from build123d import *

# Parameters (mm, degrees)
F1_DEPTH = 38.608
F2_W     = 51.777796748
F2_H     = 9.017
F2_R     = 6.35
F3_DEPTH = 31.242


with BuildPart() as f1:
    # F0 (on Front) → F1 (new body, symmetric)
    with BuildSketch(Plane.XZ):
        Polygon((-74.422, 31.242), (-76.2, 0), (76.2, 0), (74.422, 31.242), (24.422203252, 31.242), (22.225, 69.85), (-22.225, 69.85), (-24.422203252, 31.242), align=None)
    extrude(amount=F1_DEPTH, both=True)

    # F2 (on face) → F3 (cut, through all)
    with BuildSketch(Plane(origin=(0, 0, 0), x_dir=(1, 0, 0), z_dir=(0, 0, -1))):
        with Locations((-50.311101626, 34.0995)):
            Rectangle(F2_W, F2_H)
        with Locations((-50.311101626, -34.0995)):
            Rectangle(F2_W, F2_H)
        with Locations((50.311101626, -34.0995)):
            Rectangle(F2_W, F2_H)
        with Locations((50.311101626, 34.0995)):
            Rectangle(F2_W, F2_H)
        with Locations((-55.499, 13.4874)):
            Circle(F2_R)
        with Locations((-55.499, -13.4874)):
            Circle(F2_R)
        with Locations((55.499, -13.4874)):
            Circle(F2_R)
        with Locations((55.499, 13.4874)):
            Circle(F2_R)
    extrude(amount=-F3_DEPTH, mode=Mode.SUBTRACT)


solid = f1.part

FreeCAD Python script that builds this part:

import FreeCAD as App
import Part
import Sketcher
Q = App.Units.Quantity

doc = App.newDocument("Part")
params = doc.addObject("Spreadsheet::Sheet", "Params")
for row, (alias, value) in enumerate([
    ("sketch1_width", "6 in"),
    ("sketch1_width2", "1.75 in"),
    ("pad1_length", "3.04 in"),
    ("sketch2_diameter", "0.5 in"),
    ("sketch2_height", "0.355 in"),
], start=1):
    params.set(f"A{row}", alias)
    params.set(f"B{row}", "=" + value)
    params.setAlias(f"B{row}", alias)

body = doc.addObject("PartDesign::Body", "Body")

# Sketch on XZ plane
sketch1 = body.newObject("Sketcher::SketchObject", "Sketch")
sketch1.AttachmentSupport = (doc.getObject("XZ_Plane"), [""])
sketch1.MapMode = "FlatFace"
sketch1.addGeometry([
    Part.LineSegment(App.Vector(-74, 31, 0), App.Vector(-76, 0, 0)),  # 0
    Part.LineSegment(App.Vector(-76, 0, 0), App.Vector(76, 0, 0)),  # 1
    Part.LineSegment(App.Vector(76, 0, 0), App.Vector(74, 31, 0)),  # 2
    Part.LineSegment(App.Vector(74, 31, 0), App.Vector(24, 31, 0)),  # 3
    Part.LineSegment(App.Vector(24, 31, 0), App.Vector(22, 70, 0)),  # 4
    Part.LineSegment(App.Vector(22, 70, 0), App.Vector(-22, 70, 0)),  # 5
    Part.LineSegment(App.Vector(-22, 70, 0), App.Vector(-24, 31, 0)),  # 6
    Part.LineSegment(App.Vector(-24, 31, 0), App.Vector(-74, 31, 0)),  # 7
], False)
sketch1.addConstraint([
    Sketcher.Constraint("Coincident", 0, 2, 1, 1),
    Sketcher.Constraint("Coincident", 1, 2, 2, 1),
    Sketcher.Constraint("Coincident", 2, 2, 3, 1),
    Sketcher.Constraint("Coincident", 3, 2, 4, 1),
    Sketcher.Constraint("Coincident", 4, 2, 5, 1),
    Sketcher.Constraint("Coincident", 5, 2, 6, 1),
    Sketcher.Constraint("Coincident", 6, 2, 7, 1),
    Sketcher.Constraint("Coincident", 7, 2, 0, 1),
    Sketcher.Constraint("Horizontal", 1),
    Sketcher.Constraint("Horizontal", 3),
    Sketcher.Constraint("Horizontal", 5),
    Sketcher.Constraint("Horizontal", 7),
    Sketcher.Constraint("Symmetric", 0, 2, 1, 2, -1, 1),
    Sketcher.Constraint("Symmetric", 3, 2, 6, 2, -2),
    Sketcher.Constraint("Parallel", 2, 4),
    Sketcher.Constraint("Parallel", 0, 6),
    Sketcher.Constraint("Equal", 3, 7),
    Sketcher.Constraint("DistanceX", 1, 1, 1, 2, Q("6 in")),
    Sketcher.Constraint("DistanceX", 5, 2, 5, 1, Q("1.75 in")),
    Sketcher.Constraint("DistanceX", -1, 1, 2, 2, Q("2.93 in")),
    Sketcher.Constraint("DistanceY", -1, 1, 2, 2, Q("1.23 in")),
    Sketcher.Constraint("DistanceY", -1, 1, 4, 2, Q("2.75 in")),
])
sketch1.setExpression("Constraints[17]", "Params.sketch1_width")
sketch1.setExpression("Constraints[18]", "Params.sketch1_width2")
pad1 = body.newObject("PartDesign::Pad", "Pad")
pad1.Profile = sketch1
pad1.setExpression("Length", "Params.pad1_length")
pad1.Midplane = True

# Sketch on XY plane
sketch2 = body.newObject("Sketcher::SketchObject", "Sketch001")
sketch2.AttachmentSupport = (doc.getObject("XY_Plane"), [""])
sketch2.MapMode = "FlatFace"
sketch2.addGeometry([
    Part.LineSegment(App.Vector(-76, -39, 0), App.Vector(-76, -30, 0)),  # 0
    Part.LineSegment(App.Vector(-76, -30, 0), App.Vector(-24, -30, 0)),  # 1
    Part.LineSegment(App.Vector(-24, -30, 0), App.Vector(-24, -39, 0)),  # 2
    Part.LineSegment(App.Vector(-24, -39, 0), App.Vector(-76, -39, 0)),  # 3
    Part.LineSegment(App.Vector(-76, 30, 0), App.Vector(-76, 39, 0)),  # 4
    Part.LineSegment(App.Vector(-76, 39, 0), App.Vector(-24, 39, 0)),  # 5
    Part.LineSegment(App.Vector(-24, 39, 0), App.Vector(-24, 30, 0)),  # 6
    Part.LineSegment(App.Vector(-24, 30, 0), App.Vector(-76, 30, 0)),  # 7
    Part.LineSegment(App.Vector(24, 30, 0), App.Vector(24, 39, 0)),  # 8
    Part.LineSegment(App.Vector(24, 39, 0), App.Vector(76, 39, 0)),  # 9
    Part.LineSegment(App.Vector(76, 39, 0), App.Vector(76, 30, 0)),  # 10
    Part.LineSegment(App.Vector(76, 30, 0), App.Vector(24, 30, 0)),  # 11
    Part.LineSegment(App.Vector(24, -39, 0), App.Vector(24, -30, 0)),  # 12
    Part.LineSegment(App.Vector(24, -30, 0), App.Vector(76, -30, 0)),  # 13
    Part.LineSegment(App.Vector(76, -30, 0), App.Vector(76, -39, 0)),  # 14
    Part.LineSegment(App.Vector(76, -39, 0), App.Vector(24, -39, 0)),  # 15
    Part.Circle(App.Vector(-55, -13, 0), App.Vector(0, 0, 1), 6),  # 16
    Part.Circle(App.Vector(-55, 13, 0), App.Vector(0, 0, 1), 6),  # 17
    Part.Circle(App.Vector(55, 13, 0), App.Vector(0, 0, 1), 6),  # 18
    Part.Circle(App.Vector(55, -13, 0), App.Vector(0, 0, 1), 6),  # 19
], False)
sketch2.addConstraint([
    Sketcher.Constraint("Coincident", 0, 2, 1, 1),
    Sketcher.Constraint("Coincident", 1, 2, 2, 1),
    Sketcher.Constraint("Coincident", 2, 2, 3, 1),
    Sketcher.Constraint("Coincident", 3, 2, 0, 1),
    Sketcher.Constraint("Coincident", 4, 2, 5, 1),
    Sketcher.Constraint("Coincident", 5, 2, 6, 1),
    Sketcher.Constraint("Coincident", 6, 2, 7, 1),
    Sketcher.Constraint("Coincident", 7, 2, 4, 1),
    Sketcher.Constraint("Coincident", 8, 2, 9, 1),
    Sketcher.Constraint("Coincident", 9, 2, 10, 1),
    Sketcher.Constraint("Coincident", 10, 2, 11, 1),
    Sketcher.Constraint("Coincident", 11, 2, 8, 1),
    Sketcher.Constraint("Coincident", 12, 2, 13, 1),
    Sketcher.Constraint("Coincident", 13, 2, 14, 1),
    Sketcher.Constraint("Coincident", 14, 2, 15, 1),
    Sketcher.Constraint("Coincident", 15, 2, 12, 1),
    Sketcher.Constraint("Vertical", 0),
    Sketcher.Constraint("Horizontal", 1),
    Sketcher.Constraint("Vertical", 2),
    Sketcher.Constraint("Horizontal", 3),
    Sketcher.Constraint("Vertical", 4),
    Sketcher.Constraint("Horizontal", 5),
    Sketcher.Constraint("Vertical", 6),
    Sketcher.Constraint("Horizontal", 7),
    Sketcher.Constraint("Vertical", 8),
    Sketcher.Constraint("Horizontal", 9),
    Sketcher.Constraint("Vertical", 10),
    Sketcher.Constraint("Horizontal", 11),
    Sketcher.Constraint("Vertical", 12),
    Sketcher.Constraint("Horizontal", 13),
    Sketcher.Constraint("Vertical", 14),
    Sketcher.Constraint("Horizontal", 15),
    Sketcher.Constraint("Equal", 16, 17),
    Sketcher.Constraint("Equal", 17, 18),
    Sketcher.Constraint("Equal", 18, 19),
    Sketcher.Constraint("Symmetric", 16, 3, 18, 3, -1, 1),
    Sketcher.Constraint("Symmetric", 17, 3, 19, 3, -1, 1),
    Sketcher.Constraint("Symmetric", 2, 2, 8, 2, -1, 1),
    Sketcher.Constraint("Symmetric", 0, 2, 10, 2, -1, 1),
    Sketcher.Constraint("Symmetric", 6, 2, 12, 2, -1, 1),
    Sketcher.Constraint("Symmetric", 4, 2, 14, 2, -1, 1),
    Sketcher.Constraint("Symmetric", 17, 3, 18, 3, -2),
    Sketcher.Constraint("Symmetric", 5, 2, 8, 2, -2),
    Sketcher.Constraint("Symmetric", 7, 2, 10, 2, -2),
    Sketcher.Constraint("Diameter", 16, Q("0.5 in")),
    Sketcher.Constraint("DistanceX", 0, 2, -1, 1, Q("3 in")),
    Sketcher.Constraint("DistanceY", 0, 1, 0, 2, Q("0.355 in")),
    Sketcher.Constraint("DistanceY", 2, 2, -1, 1, Q("1.52 in")),
    Sketcher.Constraint("DistanceX", 17, 3, 18, 3, Q("4.37 in")),
    Sketcher.Constraint("DistanceY", 16, 3, -1, 1, Q("0.531 in")),
    Sketcher.Constraint("DistanceX", 1, 1, 1, 2, 51.777797),
])
sketch2.setExpression("Constraints[44]", "Params.sketch2_diameter")
sketch2.setExpression("Constraints[46]", "Params.sketch2_height")
pocket1 = body.newObject("PartDesign::Pocket", "Pocket")
pocket1.Profile = sketch2
pocket1.Type = "ThroughAll"
pocket1.Reversed = True

doc.recompute()
